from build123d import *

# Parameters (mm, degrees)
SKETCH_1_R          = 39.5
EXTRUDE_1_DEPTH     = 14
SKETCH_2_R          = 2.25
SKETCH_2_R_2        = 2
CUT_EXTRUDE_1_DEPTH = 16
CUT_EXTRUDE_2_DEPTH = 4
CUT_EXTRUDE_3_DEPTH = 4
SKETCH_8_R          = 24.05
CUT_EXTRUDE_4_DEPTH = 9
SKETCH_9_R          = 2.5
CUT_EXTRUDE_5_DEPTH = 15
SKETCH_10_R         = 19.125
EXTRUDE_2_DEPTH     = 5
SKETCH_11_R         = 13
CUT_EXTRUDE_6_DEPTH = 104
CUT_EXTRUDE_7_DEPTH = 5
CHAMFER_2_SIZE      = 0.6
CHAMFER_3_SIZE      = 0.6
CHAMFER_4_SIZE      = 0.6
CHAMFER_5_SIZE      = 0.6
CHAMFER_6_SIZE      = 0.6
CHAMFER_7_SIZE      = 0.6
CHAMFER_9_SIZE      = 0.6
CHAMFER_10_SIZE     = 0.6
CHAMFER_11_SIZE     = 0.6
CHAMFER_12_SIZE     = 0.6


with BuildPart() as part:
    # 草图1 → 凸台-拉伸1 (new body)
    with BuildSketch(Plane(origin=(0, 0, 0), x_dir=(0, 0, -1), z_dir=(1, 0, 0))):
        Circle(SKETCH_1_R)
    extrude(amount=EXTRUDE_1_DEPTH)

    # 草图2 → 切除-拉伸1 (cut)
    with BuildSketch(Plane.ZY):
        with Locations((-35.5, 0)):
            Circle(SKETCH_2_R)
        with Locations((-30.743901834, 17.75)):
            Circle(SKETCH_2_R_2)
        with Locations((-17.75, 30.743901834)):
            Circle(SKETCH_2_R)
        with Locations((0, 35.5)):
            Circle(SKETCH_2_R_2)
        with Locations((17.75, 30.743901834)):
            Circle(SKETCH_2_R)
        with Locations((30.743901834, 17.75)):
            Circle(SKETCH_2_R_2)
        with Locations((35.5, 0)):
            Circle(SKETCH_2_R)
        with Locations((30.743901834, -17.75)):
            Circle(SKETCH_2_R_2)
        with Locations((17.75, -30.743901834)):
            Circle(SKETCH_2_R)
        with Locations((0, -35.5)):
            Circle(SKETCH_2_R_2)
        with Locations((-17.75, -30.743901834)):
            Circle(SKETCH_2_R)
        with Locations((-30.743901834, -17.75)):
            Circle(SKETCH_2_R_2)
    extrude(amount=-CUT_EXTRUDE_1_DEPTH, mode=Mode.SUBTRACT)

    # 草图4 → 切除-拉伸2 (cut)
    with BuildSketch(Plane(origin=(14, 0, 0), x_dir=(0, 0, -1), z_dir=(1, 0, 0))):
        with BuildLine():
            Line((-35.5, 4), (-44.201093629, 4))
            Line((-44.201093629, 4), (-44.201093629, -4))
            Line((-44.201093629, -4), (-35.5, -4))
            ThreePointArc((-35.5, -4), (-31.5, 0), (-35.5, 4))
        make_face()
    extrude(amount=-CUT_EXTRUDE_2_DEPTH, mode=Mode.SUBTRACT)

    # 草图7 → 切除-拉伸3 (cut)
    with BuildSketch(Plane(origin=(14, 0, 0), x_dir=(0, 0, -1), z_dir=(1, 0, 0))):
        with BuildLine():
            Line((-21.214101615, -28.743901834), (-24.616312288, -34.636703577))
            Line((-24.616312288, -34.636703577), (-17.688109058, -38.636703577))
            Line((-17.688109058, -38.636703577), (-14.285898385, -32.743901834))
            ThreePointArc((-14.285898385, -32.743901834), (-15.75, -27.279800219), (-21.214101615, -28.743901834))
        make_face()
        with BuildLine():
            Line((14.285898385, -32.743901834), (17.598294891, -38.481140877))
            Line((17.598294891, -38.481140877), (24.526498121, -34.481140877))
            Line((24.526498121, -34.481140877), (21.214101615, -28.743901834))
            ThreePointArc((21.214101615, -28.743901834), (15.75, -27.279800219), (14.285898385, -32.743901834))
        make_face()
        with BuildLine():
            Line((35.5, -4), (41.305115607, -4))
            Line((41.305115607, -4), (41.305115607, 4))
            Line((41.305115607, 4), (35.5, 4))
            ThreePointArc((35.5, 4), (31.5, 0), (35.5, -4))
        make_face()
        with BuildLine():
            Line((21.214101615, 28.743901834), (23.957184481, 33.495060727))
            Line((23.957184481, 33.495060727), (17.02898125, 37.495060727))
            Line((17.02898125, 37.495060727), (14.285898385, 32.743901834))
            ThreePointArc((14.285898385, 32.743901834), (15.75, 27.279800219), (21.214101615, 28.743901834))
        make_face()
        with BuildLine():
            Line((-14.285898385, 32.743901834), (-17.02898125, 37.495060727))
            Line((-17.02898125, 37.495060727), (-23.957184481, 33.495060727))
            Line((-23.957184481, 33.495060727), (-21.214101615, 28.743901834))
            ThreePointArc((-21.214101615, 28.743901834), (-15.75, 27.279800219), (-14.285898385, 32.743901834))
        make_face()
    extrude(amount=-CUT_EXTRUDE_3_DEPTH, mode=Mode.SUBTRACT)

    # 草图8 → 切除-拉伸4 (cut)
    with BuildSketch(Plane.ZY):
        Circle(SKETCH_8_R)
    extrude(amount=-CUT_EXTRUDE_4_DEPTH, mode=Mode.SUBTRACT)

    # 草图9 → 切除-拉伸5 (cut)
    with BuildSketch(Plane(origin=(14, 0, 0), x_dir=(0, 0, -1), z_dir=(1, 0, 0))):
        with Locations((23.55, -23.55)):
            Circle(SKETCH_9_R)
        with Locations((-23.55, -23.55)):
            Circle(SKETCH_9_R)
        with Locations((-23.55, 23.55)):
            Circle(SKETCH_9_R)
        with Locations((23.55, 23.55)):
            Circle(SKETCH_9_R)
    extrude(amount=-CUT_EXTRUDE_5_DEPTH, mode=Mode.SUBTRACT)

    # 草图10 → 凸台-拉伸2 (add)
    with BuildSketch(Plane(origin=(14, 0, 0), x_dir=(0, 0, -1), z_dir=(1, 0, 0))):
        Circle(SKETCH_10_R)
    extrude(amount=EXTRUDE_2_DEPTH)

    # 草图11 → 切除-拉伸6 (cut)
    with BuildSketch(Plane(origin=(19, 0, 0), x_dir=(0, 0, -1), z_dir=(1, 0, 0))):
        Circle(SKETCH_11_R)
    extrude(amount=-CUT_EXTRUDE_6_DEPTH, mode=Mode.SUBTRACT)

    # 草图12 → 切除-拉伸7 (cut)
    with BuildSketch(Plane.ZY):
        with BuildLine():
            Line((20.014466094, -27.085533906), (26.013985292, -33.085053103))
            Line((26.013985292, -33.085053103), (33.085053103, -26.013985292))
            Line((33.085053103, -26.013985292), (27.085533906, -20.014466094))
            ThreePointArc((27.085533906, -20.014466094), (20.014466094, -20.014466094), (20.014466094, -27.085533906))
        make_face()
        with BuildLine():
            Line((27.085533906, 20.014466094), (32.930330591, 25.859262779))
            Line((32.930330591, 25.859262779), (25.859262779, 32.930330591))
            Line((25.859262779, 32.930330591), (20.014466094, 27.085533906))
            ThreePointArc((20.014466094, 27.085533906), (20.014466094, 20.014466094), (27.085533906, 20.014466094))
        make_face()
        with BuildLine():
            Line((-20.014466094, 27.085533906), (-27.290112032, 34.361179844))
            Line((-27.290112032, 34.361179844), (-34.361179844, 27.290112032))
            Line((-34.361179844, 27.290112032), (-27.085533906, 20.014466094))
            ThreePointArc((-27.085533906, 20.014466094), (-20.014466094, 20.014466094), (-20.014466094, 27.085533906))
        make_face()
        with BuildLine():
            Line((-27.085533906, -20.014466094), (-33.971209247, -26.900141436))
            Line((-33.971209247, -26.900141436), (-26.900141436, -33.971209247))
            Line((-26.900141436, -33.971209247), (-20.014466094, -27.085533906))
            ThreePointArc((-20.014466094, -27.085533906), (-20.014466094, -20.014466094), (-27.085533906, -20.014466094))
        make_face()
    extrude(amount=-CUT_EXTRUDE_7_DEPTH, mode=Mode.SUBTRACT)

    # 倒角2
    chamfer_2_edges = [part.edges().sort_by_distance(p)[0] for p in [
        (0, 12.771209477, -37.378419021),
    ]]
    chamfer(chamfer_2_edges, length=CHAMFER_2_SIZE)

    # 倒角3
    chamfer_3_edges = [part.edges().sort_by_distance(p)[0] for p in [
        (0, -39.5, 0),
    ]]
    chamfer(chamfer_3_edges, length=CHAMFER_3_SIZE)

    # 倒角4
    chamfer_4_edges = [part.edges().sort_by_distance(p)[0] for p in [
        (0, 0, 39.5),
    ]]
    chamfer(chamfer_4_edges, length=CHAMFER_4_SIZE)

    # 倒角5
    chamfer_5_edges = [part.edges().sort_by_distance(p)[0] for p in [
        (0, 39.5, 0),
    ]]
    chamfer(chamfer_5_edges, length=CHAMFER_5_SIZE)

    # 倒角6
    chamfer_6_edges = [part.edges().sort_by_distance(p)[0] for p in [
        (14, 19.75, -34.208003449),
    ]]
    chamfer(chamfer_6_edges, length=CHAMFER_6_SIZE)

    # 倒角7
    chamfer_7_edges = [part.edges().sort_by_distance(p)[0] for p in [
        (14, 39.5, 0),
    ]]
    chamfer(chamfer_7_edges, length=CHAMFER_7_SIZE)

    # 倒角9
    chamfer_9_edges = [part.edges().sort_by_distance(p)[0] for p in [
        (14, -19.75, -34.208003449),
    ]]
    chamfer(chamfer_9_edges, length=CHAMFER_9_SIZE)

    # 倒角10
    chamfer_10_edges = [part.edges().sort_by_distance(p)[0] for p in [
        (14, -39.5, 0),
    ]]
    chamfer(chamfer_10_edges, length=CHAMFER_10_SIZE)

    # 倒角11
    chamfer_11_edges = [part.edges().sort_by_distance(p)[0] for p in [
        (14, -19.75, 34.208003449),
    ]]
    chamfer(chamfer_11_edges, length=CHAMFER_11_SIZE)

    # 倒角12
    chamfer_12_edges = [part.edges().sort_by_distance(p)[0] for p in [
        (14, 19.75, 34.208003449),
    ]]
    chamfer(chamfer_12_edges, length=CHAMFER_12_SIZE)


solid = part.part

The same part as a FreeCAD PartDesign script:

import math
import FreeCAD as App
import Part
import Sketcher

V = App.Vector
Q = App.Units.Quantity


def edges_at(feature, points):
    """Names of the edges that pass closest to the given points."""
    edges = feature.Shape.Edges
    near = lambda p: min(range(len(edges)), key=lambda i: edges[i].distToShape(Part.Vertex(*p))[0])
    return sorted({f"Edge{near(p) + 1}" for p in points})

doc = App.newDocument("Part")
body = doc.addObject("PartDesign::Body", "Body")

# Sketch on YZ plane
sketch1 = body.newObject("Sketcher::SketchObject", "Sketch")
sketch1.AttachmentSupport = (doc.getObject("YZ_Plane"), [""])
sketch1.MapMode = "FlatFace"
sketch1.addGeometry(Part.Circle(V(0, 0, 0), V(0, 0, 1), 40), False)
sketch1.addConstraint([
    Sketcher.Constraint("Coincident", 0, 3, -1, 1),
    Sketcher.Constraint("Diameter", 0, Q("79 mm")),
])
pad1 = body.newObject("PartDesign::Pad", "Pad")
pad1.Profile = sketch1
pad1.Length = 14

# Sketch on YZ plane
sketch2 = body.newObject("Sketcher::SketchObject", "Sketch001")
sketch2.AttachmentSupport = (doc.getObject("YZ_Plane"), [""])
sketch2.MapMode = "FlatFace"
sketch2.addGeometry([
    Part.Circle(V(0, -35.5, 0), V(0, 0, 1), 2.2),  # 0
    Part.Circle(V(17.8, -30.7, 0), V(0, 0, 1), 2),  # 1
    Part.Circle(V(30.7, -17.8, 0), V(0, 0, 1), 2.2),  # 2
    Part.Circle(V(35.5, 0, 0), V(0, 0, 1), 2),  # 3
    Part.Circle(V(30.7, 17.8, 0), V(0, 0, 1), 2.2),  # 4
    Part.Circle(V(17.8, 30.7, 0), V(0, 0, 1), 2),  # 5
    Part.Circle(V(0, 35.5, 0), V(0, 0, 1), 2.2),  # 6
    Part.Circle(V(-17.8, 30.7, 0), V(0, 0, 1), 2),  # 7
    Part.Circle(V(-30.7, 17.8, 0), V(0, 0, 1), 2.2),  # 8
    Part.Circle(V(-35.5, 0, 0), V(0, 0, 1), 2),  # 9
    Part.Circle(V(-30.7, -17.8, 0), V(0, 0, 1), 2.2),  # 10
    Part.Circle(V(-17.8, -30.7, 0), V(0, 0, 1), 2),  # 11
], False)
sketch2.addConstraint([
    Sketcher.Constraint("Equal", 0, 2),
    Sketcher.Constraint("Equal", 1, 3),
    Sketcher.Constraint("Equal", 2, 4),
    Sketcher.Constraint("Equal", 3, 5),
    Sketcher.Constraint("Equal", 4, 6),
    Sketcher.Constraint("Equal", 5, 7),
    Sketcher.Constraint("Equal", 6, 8),
    Sketcher.Constraint("Equal", 7, 9),
    Sketcher.Constraint("Equal", 8, 10),
    Sketcher.Constraint("Equal", 9, 11),
    Sketcher.Constraint("Symmetric", 0, 3, 6, 3, -1, 1),
    Sketcher.Constraint("Symmetric", 1, 3, 7, 3, -1, 1),
    Sketcher.Constraint("Symmetric", 2, 3, 8, 3, -1, 1),
    Sketcher.Constraint("Symmetric", 3, 3, 9, 3, -1, 1),
    Sketcher.Constraint("Symmetric", 4, 3, 10, 3, -1, 1),
    Sketcher.Constraint("Symmetric", 5, 3, 11, 3, -1, 1),
    Sketcher.Constraint("Symmetric", 5, 3, 7, 3, -2),
    Sketcher.Constraint("Symmetric", 4, 3, 8, 3, -2),
    Sketcher.Constraint("PointOnObject", 0, 3, -2),
    Sketcher.Constraint("PointOnObject", 3, 3, -1),
    Sketcher.Constraint("Diameter", 1, Q("4 mm")),
    Sketcher.Constraint("Diameter", 0, Q("4.5 mm")),
    Sketcher.Constraint("DistanceY", 0, 3, -1, 1, Q("35.5 mm")),
    Sketcher.Constraint("DistanceX", -1, 1, 3, 3, Q("35.5 mm")),
    Sketcher.Constraint("DistanceY", 2, 3, 4, 3, Q("35.5 mm")),
    Sketcher.Constraint("DistanceX", 7, 3, 5, 3, Q("35.5 mm")),
    Sketcher.Constraint("DistanceY", 1, 3, -1, 1, Q("30.743902 mm")),
    Sketcher.Constraint("DistanceX", -1, 1, 2, 3, Q("30.743902 mm")),
])
pocket1 = body.newObject("PartDesign::Pocket", "Pocket")
pocket1.Profile = sketch2
pocket1.Length = 16
pocket1.Reversed = True

# Sketch on YZ plane
sketch3 = body.newObject("Sketcher::SketchObject", "Sketch002")
sketch3.AttachmentSupport = (doc.getObject("YZ_Plane"), [""])
sketch3.MapMode = "FlatFace"
sketch3.AttachmentOffset = App.Placement(V(0, 0, 14), App.Rotation())
sketch3.addGeometry([
    Part.LineSegment(V(4, 35.5, 0), V(4, 44.2, 0)),
    Part.LineSegment(V(4, 44.2, 0), V(-4, 44.2, 0)),
    Part.LineSegment(V(-4, 44.2, 0), V(-4, 35.5, 0)),
    Part.ArcOfCircle(Part.Circle(V(0, 35.5, 0), V(0, 0, 1), 4), math.radians(180), math.radians(360)),
], False)
sketch3.addConstraint([
    Sketcher.Constraint("Coincident", 0, 2, 1, 1),
    Sketcher.Constraint("Coincident", 1, 2, 2, 1),
    Sketcher.Constraint("Tangent", 2, 2, 3, 1),
    Sketcher.Constraint("Tangent", 3, 2, 0, 1),
    Sketcher.Constraint("Vertical", 0),
    Sketcher.Constraint("Horizontal", 1),
    Sketcher.Constraint("Vertical", 2),
    Sketcher.Constraint("PointOnObject", 3, 3, -2),
    Sketcher.Constraint("Radius", 3, Q("4 mm")),
    Sketcher.Constraint("DistanceY", -1, 1, 3, 3, Q("35.5 mm")),
    Sketcher.Constraint("DistanceY", 0, 1, 0, 2, Q("8.701094 mm")),
])
pocket2 = body.newObject("PartDesign::Pocket", "Pocket001")
pocket2.Profile = sketch3
pocket2.Length = 4

# Sketch on YZ plane
sketch4 = body.newObject("Sketcher::SketchObject", "Sketch003")
sketch4.AttachmentSupport = (doc.getObject("YZ_Plane"), [""])
sketch4.MapMode = "FlatFace"
sketch4.AttachmentOffset = App.Placement(V(0, 0, 14), App.Rotation())
sketch4.addGeometry([
    Part.LineSegment(V(-28.7, 21.2, 0), V(-34.6, 24.6, 0)),  # 0
    Part.LineSegment(V(-34.6, 24.6, 0), V(-38.6, 17.7, 0)),  # 1
    Part.LineSegment(V(-38.6, 17.7, 0), V(-32.7, 14.3, 0)),  # 2
    Part.ArcOfCircle(Part.Circle(V(-30.7, 17.8, 0), V(0, 0, 1), 4), math.radians(-120), math.radians(60)),  # 3
    Part.LineSegment(V(-32.7, -14.3, 0), V(-38.5, -17.6, 0)),  # 4
    Part.LineSegment(V(-38.5, -17.6, 0), V(-34.5, -24.5, 0)),  # 5
    Part.LineSegment(V(-34.5, -24.5, 0), V(-28.7, -21.2, 0)),  # 6
    Part.ArcOfCircle(Part.Circle(V(-30.7, -17.8, 0), V(0, 0, 1), 4), math.radians(-60), math.radians(120)),  # 7
    Part.LineSegment(V(-4, -35.5, 0), V(-4, -41.3, 0)),  # 8
    Part.LineSegment(V(-4, -41.3, 0), V(4, -41.3, 0)),  # 9
    Part.LineSegment(V(4, -41.3, 0), V(4, -35.5, 0)),  # 10
    Part.ArcOfCircle(Part.Circle(V(0, -35.5, 0), V(0, 0, 1), 4), math.radians(0), math.radians(180)),  # 11
    Part.LineSegment(V(28.7, -21.2, 0), V(33.5, -24, 0)),  # 12
    Part.LineSegment(V(33.5, -24, 0), V(37.5, -17, 0)),  # 13
    Part.LineSegment(V(37.5, -17, 0), V(32.7, -14.3, 0)),  # 14
    Part.ArcOfCircle(Part.Circle(V(30.7, -17.8, 0), V(0, 0, 1), 4), math.radians(60), math.radians(240)),  # 15
    Part.LineSegment(V(32.7, 14.3, 0), V(37.5, 17, 0)),  # 16
    Part.LineSegment(V(37.5, 17, 0), V(33.5, 24, 0)),  # 17
    Part.LineSegment(V(33.5, 24, 0), V(28.7, 21.2, 0)),  # 18
    Part.ArcOfCircle(Part.Circle(V(30.7, 17.8, 0), V(0, 0, 1), 4), math.radians(120), math.radians(300)),  # 19
], False)
sketch4.addConstraint([
    Sketcher.Constraint("Coincident", 0, 2, 1, 1),
    Sketcher.Constraint("Coincident", 1, 2, 2, 1),
    Sketcher.Constraint("Tangent", 2, 2, 3, 1),
    Sketcher.Constraint("Tangent", 3, 2, 0, 1),
    Sketcher.Constraint("Coincident", 4, 2, 5, 1),
    Sketcher.Constraint("Coincident", 5, 2, 6, 1),
    Sketcher.Constraint("Tangent", 6, 2, 7, 1),
    Sketcher.Constraint("Tangent", 7, 2, 4, 1),
    Sketcher.Constraint("Coincident", 8, 2, 9, 1),
    Sketcher.Constraint("Coincident", 9, 2, 10, 1),
    Sketcher.Constraint("Tangent", 10, 2, 11, 1),
    Sketcher.Constraint("Tangent", 11, 2, 8, 1),
    Sketcher.Constraint("Coincident", 12, 2, 13, 1),
    Sketcher.Constraint("Coincident", 13, 2, 14, 1),
    Sketcher.Constraint("Tangent", 14, 2, 15, 1),
    Sketcher.Constraint("Tangent", 15, 2, 12, 1),
    Sketcher.Constraint("Coincident", 16, 2, 17, 1),
    Sketcher.Constraint("Coincident", 17, 2, 18, 1),
    Sketcher.Constraint("Tangent", 18, 2, 19, 1),
    Sketcher.Constraint("Tangent", 19, 2, 16, 1),
    Sketcher.Constraint("Vertical", 8),
    Sketcher.Constraint("Horizontal", 9),
    Sketcher.Constraint("Vertical", 10),
    Sketcher.Constraint("Equal", 3, 7),
    Sketcher.Constraint("Equal", 7, 11),
    Sketcher.Constraint("Equal", 11, 15),
    Sketcher.Constraint("Equal", 15, 19),
    Sketcher.Constraint("Symmetric", 3, 3, 15, 3, -1, 1),
    Sketcher.Constraint("Symmetric", 7, 3, 19, 3, -1, 1),
    Sketcher.Constraint("Symmetric", 7, 3, 15, 3, -2),
    Sketcher.Constraint("Symmetric", 13, 2, 16, 2, -1),
    Sketcher.Constraint("Symmetric", 12, 2, 17, 2, -1),
    Sketcher.Constraint("PointOnObject", 11, 3, -2),
    Sketcher.Constraint("Perpendicular", 0, 1),
    Sketcher.Constraint("Perpendicular", 1, 2),
    Sketcher.Constraint("Perpendicular", 4, 5),
    Sketcher.Constraint("Perpendicular", 5, 6),
    Sketcher.Constraint("Parallel", 2, 12),
    Sketcher.Constraint("Perpendicular", 12, 13),
    Sketcher.Constraint("Perpendicular", 13, 14),
    Sketcher.Constraint("Parallel", 6, 16),
    Sketcher.Constraint("Radius", 3, Q("4 mm")),
    Sketcher.Constraint("Angle", 0, Q("150 deg")),
    Sketcher.Constraint("DistanceY", 11, 3, -1, 1, Q("35.5 mm")),
    Sketcher.Constraint("DistanceY", 7, 3, 3, 3, Q("35.5 mm")),
    Sketcher.Constraint("DistanceX", 3, 3, -1, 1, Q("30.743902 mm")),
    Sketcher.Constraint("DistanceY", 5, 2, -1, 1, Q("24.526498 mm")),
    Sketcher.Constraint("DistanceX", 0, 2, 3, 3, Q("3.892802 mm")),
    Sketcher.Constraint("DistanceY", 8, 2, 8, 1, Q("5.805116 mm")),
    Sketcher.Constraint("DistanceX", -1, 1, 12, 2, Q("33.495061 mm")),
])
pocket3 = body.newObject("PartDesign::Pocket", "Pocket002")
pocket3.Profile = sketch4
pocket3.Length = 4

# Sketch on YZ plane
sketch5 = body.newObject("Sketcher::SketchObject", "Sketch004")
sketch5.AttachmentSupport = (doc.getObject("YZ_Plane"), [""])
sketch5.MapMode = "FlatFace"
sketch5.addGeometry(Part.Circle(V(0, 0, 0), V(0, 0, 1), 24), False)
sketch5.addConstraint([
    Sketcher.Constraint("Coincident", 0, 3, -1, 1),
    Sketcher.Constraint("Diameter", 0, Q("48.1 mm")),
])
pocket4 = body.newObject("PartDesign::Pocket", "Pocket003")
pocket4.Profile = sketch5
pocket4.Length = 9
pocket4.Reversed = True

# Sketch on YZ plane
sketch6 = body.newObject("Sketcher::SketchObject", "Sketch005")
sketch6.AttachmentSupport = (doc.getObject("YZ_Plane"), [""])
sketch6.MapMode = "FlatFace"
sketch6.AttachmentOffset = App.Placement(V(0, 0, 14), App.Rotation())
sketch6.addGeometry([
    Part.Circle(V(-23.6, -23.6, 0), V(0, 0, 1), 2.5),
    Part.Circle(V(-23.6, 23.6, 0), V(0, 0, 1), 2.5),
    Part.Circle(V(23.6, 23.6, 0), V(0, 0, 1), 2.5),
    Part.Circle(V(23.6, -23.6, 0), V(0, 0, 1), 2.5),
], False)
sketch6.addConstraint([
    Sketcher.Constraint("Equal", 0, 1),
    Sketcher.Constraint("Equal", 1, 2),
    Sketcher.Constraint("Equal", 2, 3),
    Sketcher.Constraint("Symmetric", 0, 3, 2, 3, -1, 1),
    Sketcher.Constraint("Symmetric", 1, 3, 3, 3, -1, 1),
    Sketcher.Constraint("Symmetric", 1, 3, 2, 3, -2),
    Sketcher.Constraint("Diameter", 0, Q("5 mm")),
    Sketcher.Constraint("DistanceY", 0, 3, 1, 3, Q("47.1 mm")),
    Sketcher.Constraint("DistanceX", 1, 3, 2, 3, Q("47.1 mm")),
])
pocket5 = body.newObject("PartDesign::Pocket", "Pocket004")
pocket5.Profile = sketch6
pocket5.Length = 15

# Sketch on YZ plane
sketch7 = body.newObject("Sketcher::SketchObject", "Sketch006")
sketch7.AttachmentSupport = (doc.getObject("YZ_Plane"), [""])
sketch7.MapMode = "FlatFace"
sketch7.AttachmentOffset = App.Placement(V(0, 0, 14), App.Rotation())
sketch7.addGeometry(Part.Circle(V(0, 0, 0), V(0, 0, 1), 19), False)
sketch7.addConstraint([
    Sketcher.Constraint("Coincident", 0, 3, -1, 1),
    Sketcher.Constraint("Diameter", 0, Q("38.25 mm")),
])
pad2 = body.newObject("PartDesign::Pad", "Pad001")
pad2.Profile = sketch7
pad2.Length = 5

# Sketch on YZ plane
sketch8 = body.newObject("Sketcher::SketchObject", "Sketch007")
sketch8.AttachmentSupport = (doc.getObject("YZ_Plane"), [""])
sketch8.MapMode = "FlatFace"
sketch8.AttachmentOffset = App.Placement(V(0, 0, 19), App.Rotation())
sketch8.addGeometry(Part.Circle(V(0, 0, 0), V(0, 0, 1), 13), False)
sketch8.addConstraint([
    Sketcher.Constraint("Coincident", 0, 3, -1, 1),
    Sketcher.Constraint("Diameter", 0, Q("26 mm")),
])
pocket6 = body.newObject("PartDesign::Pocket", "Pocket005")
pocket6.Profile = sketch8
pocket6.Length = 104

# Sketch on YZ plane
sketch9 = body.newObject("Sketcher::SketchObject", "Sketch008")
sketch9.AttachmentSupport = (doc.getObject("YZ_Plane"), [""])
sketch9.MapMode = "FlatFace"
sketch9.addGeometry([
    Part.LineSegment(V(-27, 20, 0), V(-33, 26, 0)),  # 0
    Part.LineSegment(V(-33, 26, 0), V(-26, 33, 0)),  # 1
    Part.LineSegment(V(-26, 33, 0), V(-20, 27, 0)),  # 2
    Part.ArcOfCircle(Part.Circle(V(-24, 24, 0), V(0, 0, 1), 5), math.radians(-135), math.radians(45)),  # 3
    Part.LineSegment(V(20, 27, 0), V(26, 33, 0)),  # 4
    Part.LineSegment(V(26, 33, 0), V(33, 26, 0)),  # 5
    Part.LineSegment(V(33, 26, 0), V(27, 20, 0)),  # 6
    Part.ArcOfCircle(Part.Circle(V(24, 24, 0), V(0, 0, 1), 5), math.radians(135), math.radians(315)),  # 7
    Part.LineSegment(V(27, -20, 0), V(34, -27, 0)),  # 8
    Part.LineSegment(V(34, -27, 0), V(27, -34, 0)),  # 9
    Part.LineSegment(V(27, -34, 0), V(20, -27, 0)),  # 10
    Part.ArcOfCircle(Part.Circle(V(24, -24, 0), V(0, 0, 1), 5), math.radians(45), math.radians(225)),  # 11
    Part.LineSegment(V(-20, -27, 0), V(-27, -34, 0)),  # 12
    Part.LineSegment(V(-27, -34, 0), V(-34, -27, 0)),  # 13
    Part.LineSegment(V(-34, -27, 0), V(-27, -20, 0)),  # 14
    Part.ArcOfCircle(Part.Circle(V(-24, -24, 0), V(0, 0, 1), 5), math.radians(-45), math.radians(135)),  # 15
], False)
sketch9.addConstraint([
    Sketcher.Constraint("Coincident", 0, 2, 1, 1),
    Sketcher.Constraint("Coincident", 1, 2, 2, 1),
    Sketcher.Constraint("Tangent", 2, 2, 3, 2),
    Sketcher.Constraint("Tangent", 3, 1, 0, 1),
    Sketcher.Constraint("Coincident", 4, 2, 5, 1),
    Sketcher.Constraint("Coincident", 5, 2, 6, 1),
    Sketcher.Constraint("Tangent", 6, 2, 7, 2),
    Sketcher.Constraint("Tangent", 7, 1, 4, 1),
    Sketcher.Constraint("Coincident", 8, 2, 9, 1),
    Sketcher.Constraint("Coincident", 9, 2, 10, 1),
    Sketcher.Constraint("Tangent", 10, 2, 11, 2),
    Sketcher.Constraint("Tangent", 11, 1, 8, 1),
    Sketcher.Constraint("Coincident", 12, 2, 13, 1),
    Sketcher.Constraint("Coincident", 13, 2, 14, 1),
    Sketcher.Constraint("Tangent", 14, 2, 15, 2),
    Sketcher.Constraint("Tangent", 15, 1, 12, 1),
    Sketcher.Constraint("Equal", 3, 7),
    Sketcher.Constraint("Equal", 7, 11),
    Sketcher.Constraint("Equal", 11, 15),
    Sketcher.Constraint("Symmetric", 3, 3, 11, 3, -1, 1),
    Sketcher.Constraint("Symmetric", 7, 3, 15, 3, -1, 1),
    Sketcher.Constraint("Symmetric", 3, 3, 7, 3, -2),
    Sketcher.Constraint("Perpendicular", 0, 1),
    Sketcher.Constraint("Perpendicular", 1, 2),
    Sketcher.Constraint("Perpendicular", 2, 4),
    Sketcher.Constraint("Perpendicular", 4, 5),
    Sketcher.Constraint("Perpendicular", 5, 6),
    Sketcher.Constraint("Perpendicular", 6, 8),
    Sketcher.Constraint("Perpendicular", 8, 9),
    Sketcher.Constraint("Perpendicular", 9, 10),
    Sketcher.Constraint("Perpendicular", 10, 12),
    Sketcher.Constraint("Perpendicular", 12, 13),
    Sketcher.Constraint("Perpendicular", 13, 14),
    Sketcher.Constraint("Horizontal", 3, 1, 6, 2),
    Sketcher.Constraint("Radius", 3, Q("5 mm")),
    Sketcher.Constraint("DistanceX", 3, 3, 7, 3, Q("47.1 mm")),
    Sketcher.Constraint("DistanceY", 11, 3, 7, 3, Q("47.1 mm")),
    Sketcher.Constraint("Distance", 0, Q("8.484601 mm")),
    Sketcher.Constraint("Distance", 4, Q("8.265791 mm")),
    Sketcher.Constraint("DistanceX", -1, 1, 8, 2, Q("34.36118 mm")),
    Sketcher.Constraint("DistanceX", 12, 2, -1, 1, Q("26.900141 mm")),
])
pocket7 = body.newObject("PartDesign::Pocket", "Pocket006")
pocket7.Profile = sketch9
pocket7.Length = 5
pocket7.Reversed = True
doc.recompute()

chamfer = body.newObject("PartDesign::Chamfer", "Chamfer")
chamfer.Base = (pocket7, edges_at(pocket7, [(0, 12.771, -37.378)]))
chamfer.Size = 0.6
doc.recompute()

chamfer2 = body.newObject("PartDesign::Chamfer", "Chamfer001")
chamfer2.Base = (chamfer, edges_at(chamfer, [(0, -39.5, 0)]))
chamfer2.Size = 0.6
doc.recompute()

chamfer3 = body.newObject("PartDesign::Chamfer", "Chamfer002")
chamfer3.Base = (chamfer2, edges_at(chamfer2, [(0, 0, 39.5)]))
chamfer3.Size = 0.6
doc.recompute()

chamfer4 = body.newObject("PartDesign::Chamfer", "Chamfer003")
chamfer4.Base = (chamfer3, edges_at(chamfer3, [(0, 39.5, 0)]))
chamfer4.Size = 0.6
doc.recompute()

chamfer5 = body.newObject("PartDesign::Chamfer", "Chamfer004")
chamfer5.Base = (chamfer4, edges_at(chamfer4, [(14, 19.75, -34.208)]))
chamfer5.Size = 0.6
doc.recompute()

chamfer6 = body.newObject("PartDesign::Chamfer", "Chamfer005")
chamfer6.Base = (chamfer5, edges_at(chamfer5, [(14, 39.5, 0)]))
chamfer6.Size = 0.6
doc.recompute()

chamfer7 = body.newObject("PartDesign::Chamfer", "Chamfer006")
chamfer7.Base = (chamfer6, edges_at(chamfer6, [(14, -19.75, -34.208)]))
chamfer7.Size = 0.6
doc.recompute()

chamfer8 = body.newObject("PartDesign::Chamfer", "Chamfer007")
chamfer8.Base = (chamfer7, edges_at(chamfer7, [(14, -39.5, 0)]))
chamfer8.Size = 0.6
doc.recompute()

chamfer9 = body.newObject("PartDesign::Chamfer", "Chamfer008")
chamfer9.Base = (chamfer8, edges_at(chamfer8, [(14, -19.75, 34.208)]))
chamfer9.Size = 0.6
doc.recompute()

chamfer10 = body.newObject("PartDesign::Chamfer", "Chamfer009")
chamfer10.Base = (chamfer9, edges_at(chamfer9, [(14, 19.75, 34.208)]))
chamfer10.Size = 0.6

doc.recompute()
